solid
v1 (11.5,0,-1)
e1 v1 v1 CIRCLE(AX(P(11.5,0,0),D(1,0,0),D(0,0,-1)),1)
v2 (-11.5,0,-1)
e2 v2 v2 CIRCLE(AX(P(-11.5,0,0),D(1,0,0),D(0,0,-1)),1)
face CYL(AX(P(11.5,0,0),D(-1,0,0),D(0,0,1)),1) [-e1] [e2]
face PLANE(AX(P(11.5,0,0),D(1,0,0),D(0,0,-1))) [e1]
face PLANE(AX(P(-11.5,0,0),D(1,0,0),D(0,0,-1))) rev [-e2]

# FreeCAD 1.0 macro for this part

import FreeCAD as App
import Part
import Sketcher
Q = App.Units.Quantity

doc = App.newDocument("Part")
body = doc.addObject("PartDesign::Body", "Body")

# Sketch on YZ plane
sketch1 = body.newObject("Sketcher::SketchObject", "Sketch")
sketch1.AttachmentSupport = (doc.getObject("YZ_Plane"), [""])
sketch1.MapMode = "FlatFace"
sketch1.addGeometry(Part.Circle(App.Vector(0, 0, 0), App.Vector(0, 0, 1), 1), False)
sketch1.addConstraint(Sketcher.Constraint("Coincident", 0, 3, -1, 1))
sketch1.addConstraint(Sketcher.Constraint("Diameter", 0, Q("2 mm")))
pad1 = body.newObject("PartDesign::Pad", "Pad")
pad1.Profile = sketch1
pad1.Length = 23
pad1.Midplane = True

doc.recompute()
